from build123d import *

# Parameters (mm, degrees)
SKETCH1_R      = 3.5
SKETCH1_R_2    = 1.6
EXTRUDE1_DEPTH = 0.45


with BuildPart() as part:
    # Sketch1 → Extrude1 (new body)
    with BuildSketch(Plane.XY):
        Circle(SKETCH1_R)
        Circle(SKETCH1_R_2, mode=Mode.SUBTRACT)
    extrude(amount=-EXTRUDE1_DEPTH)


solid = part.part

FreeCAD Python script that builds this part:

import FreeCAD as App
import Part
import Sketcher
from FreeCAD import Vector

doc = App.newDocument("Part")
body = doc.addObject("PartDesign::Body", "Body")

# Sketch on XY plane
sketch1 = body.newObject("Sketcher::SketchObject", "Sketch")
sketch1.AttachmentSupport = (doc.getObject("XY_Plane"), [""])
sketch1.MapMode = "FlatFace"
sketch1.addGeometry(Part.Circle(Vector(0, 0, 0), Vector(0, 0, 1), 3.5), False)
sketch1.addGeometry(Part.Circle(Vector(0, 0, 0), Vector(0, 0, 1), 1.6), False)
sketch1.addConstraint(Sketcher.Constraint("Coincident", 0, 3, -1, 1))
sketch1.addConstraint(Sketcher.Constraint("Coincident", 1, 3, -1, 1))
sketch1.addConstraint(Sketcher.Constraint("Diameter", 0, 7.0))
sketch1.addConstraint(Sketcher.Constraint("Diameter", 1, 3.2))
pad1 = body.newObject("PartDesign::Pad", "Pad")
pad1.Profile = sketch1
pad1.Length = 0.45
pad1.Reversed = True

doc.recompute()
